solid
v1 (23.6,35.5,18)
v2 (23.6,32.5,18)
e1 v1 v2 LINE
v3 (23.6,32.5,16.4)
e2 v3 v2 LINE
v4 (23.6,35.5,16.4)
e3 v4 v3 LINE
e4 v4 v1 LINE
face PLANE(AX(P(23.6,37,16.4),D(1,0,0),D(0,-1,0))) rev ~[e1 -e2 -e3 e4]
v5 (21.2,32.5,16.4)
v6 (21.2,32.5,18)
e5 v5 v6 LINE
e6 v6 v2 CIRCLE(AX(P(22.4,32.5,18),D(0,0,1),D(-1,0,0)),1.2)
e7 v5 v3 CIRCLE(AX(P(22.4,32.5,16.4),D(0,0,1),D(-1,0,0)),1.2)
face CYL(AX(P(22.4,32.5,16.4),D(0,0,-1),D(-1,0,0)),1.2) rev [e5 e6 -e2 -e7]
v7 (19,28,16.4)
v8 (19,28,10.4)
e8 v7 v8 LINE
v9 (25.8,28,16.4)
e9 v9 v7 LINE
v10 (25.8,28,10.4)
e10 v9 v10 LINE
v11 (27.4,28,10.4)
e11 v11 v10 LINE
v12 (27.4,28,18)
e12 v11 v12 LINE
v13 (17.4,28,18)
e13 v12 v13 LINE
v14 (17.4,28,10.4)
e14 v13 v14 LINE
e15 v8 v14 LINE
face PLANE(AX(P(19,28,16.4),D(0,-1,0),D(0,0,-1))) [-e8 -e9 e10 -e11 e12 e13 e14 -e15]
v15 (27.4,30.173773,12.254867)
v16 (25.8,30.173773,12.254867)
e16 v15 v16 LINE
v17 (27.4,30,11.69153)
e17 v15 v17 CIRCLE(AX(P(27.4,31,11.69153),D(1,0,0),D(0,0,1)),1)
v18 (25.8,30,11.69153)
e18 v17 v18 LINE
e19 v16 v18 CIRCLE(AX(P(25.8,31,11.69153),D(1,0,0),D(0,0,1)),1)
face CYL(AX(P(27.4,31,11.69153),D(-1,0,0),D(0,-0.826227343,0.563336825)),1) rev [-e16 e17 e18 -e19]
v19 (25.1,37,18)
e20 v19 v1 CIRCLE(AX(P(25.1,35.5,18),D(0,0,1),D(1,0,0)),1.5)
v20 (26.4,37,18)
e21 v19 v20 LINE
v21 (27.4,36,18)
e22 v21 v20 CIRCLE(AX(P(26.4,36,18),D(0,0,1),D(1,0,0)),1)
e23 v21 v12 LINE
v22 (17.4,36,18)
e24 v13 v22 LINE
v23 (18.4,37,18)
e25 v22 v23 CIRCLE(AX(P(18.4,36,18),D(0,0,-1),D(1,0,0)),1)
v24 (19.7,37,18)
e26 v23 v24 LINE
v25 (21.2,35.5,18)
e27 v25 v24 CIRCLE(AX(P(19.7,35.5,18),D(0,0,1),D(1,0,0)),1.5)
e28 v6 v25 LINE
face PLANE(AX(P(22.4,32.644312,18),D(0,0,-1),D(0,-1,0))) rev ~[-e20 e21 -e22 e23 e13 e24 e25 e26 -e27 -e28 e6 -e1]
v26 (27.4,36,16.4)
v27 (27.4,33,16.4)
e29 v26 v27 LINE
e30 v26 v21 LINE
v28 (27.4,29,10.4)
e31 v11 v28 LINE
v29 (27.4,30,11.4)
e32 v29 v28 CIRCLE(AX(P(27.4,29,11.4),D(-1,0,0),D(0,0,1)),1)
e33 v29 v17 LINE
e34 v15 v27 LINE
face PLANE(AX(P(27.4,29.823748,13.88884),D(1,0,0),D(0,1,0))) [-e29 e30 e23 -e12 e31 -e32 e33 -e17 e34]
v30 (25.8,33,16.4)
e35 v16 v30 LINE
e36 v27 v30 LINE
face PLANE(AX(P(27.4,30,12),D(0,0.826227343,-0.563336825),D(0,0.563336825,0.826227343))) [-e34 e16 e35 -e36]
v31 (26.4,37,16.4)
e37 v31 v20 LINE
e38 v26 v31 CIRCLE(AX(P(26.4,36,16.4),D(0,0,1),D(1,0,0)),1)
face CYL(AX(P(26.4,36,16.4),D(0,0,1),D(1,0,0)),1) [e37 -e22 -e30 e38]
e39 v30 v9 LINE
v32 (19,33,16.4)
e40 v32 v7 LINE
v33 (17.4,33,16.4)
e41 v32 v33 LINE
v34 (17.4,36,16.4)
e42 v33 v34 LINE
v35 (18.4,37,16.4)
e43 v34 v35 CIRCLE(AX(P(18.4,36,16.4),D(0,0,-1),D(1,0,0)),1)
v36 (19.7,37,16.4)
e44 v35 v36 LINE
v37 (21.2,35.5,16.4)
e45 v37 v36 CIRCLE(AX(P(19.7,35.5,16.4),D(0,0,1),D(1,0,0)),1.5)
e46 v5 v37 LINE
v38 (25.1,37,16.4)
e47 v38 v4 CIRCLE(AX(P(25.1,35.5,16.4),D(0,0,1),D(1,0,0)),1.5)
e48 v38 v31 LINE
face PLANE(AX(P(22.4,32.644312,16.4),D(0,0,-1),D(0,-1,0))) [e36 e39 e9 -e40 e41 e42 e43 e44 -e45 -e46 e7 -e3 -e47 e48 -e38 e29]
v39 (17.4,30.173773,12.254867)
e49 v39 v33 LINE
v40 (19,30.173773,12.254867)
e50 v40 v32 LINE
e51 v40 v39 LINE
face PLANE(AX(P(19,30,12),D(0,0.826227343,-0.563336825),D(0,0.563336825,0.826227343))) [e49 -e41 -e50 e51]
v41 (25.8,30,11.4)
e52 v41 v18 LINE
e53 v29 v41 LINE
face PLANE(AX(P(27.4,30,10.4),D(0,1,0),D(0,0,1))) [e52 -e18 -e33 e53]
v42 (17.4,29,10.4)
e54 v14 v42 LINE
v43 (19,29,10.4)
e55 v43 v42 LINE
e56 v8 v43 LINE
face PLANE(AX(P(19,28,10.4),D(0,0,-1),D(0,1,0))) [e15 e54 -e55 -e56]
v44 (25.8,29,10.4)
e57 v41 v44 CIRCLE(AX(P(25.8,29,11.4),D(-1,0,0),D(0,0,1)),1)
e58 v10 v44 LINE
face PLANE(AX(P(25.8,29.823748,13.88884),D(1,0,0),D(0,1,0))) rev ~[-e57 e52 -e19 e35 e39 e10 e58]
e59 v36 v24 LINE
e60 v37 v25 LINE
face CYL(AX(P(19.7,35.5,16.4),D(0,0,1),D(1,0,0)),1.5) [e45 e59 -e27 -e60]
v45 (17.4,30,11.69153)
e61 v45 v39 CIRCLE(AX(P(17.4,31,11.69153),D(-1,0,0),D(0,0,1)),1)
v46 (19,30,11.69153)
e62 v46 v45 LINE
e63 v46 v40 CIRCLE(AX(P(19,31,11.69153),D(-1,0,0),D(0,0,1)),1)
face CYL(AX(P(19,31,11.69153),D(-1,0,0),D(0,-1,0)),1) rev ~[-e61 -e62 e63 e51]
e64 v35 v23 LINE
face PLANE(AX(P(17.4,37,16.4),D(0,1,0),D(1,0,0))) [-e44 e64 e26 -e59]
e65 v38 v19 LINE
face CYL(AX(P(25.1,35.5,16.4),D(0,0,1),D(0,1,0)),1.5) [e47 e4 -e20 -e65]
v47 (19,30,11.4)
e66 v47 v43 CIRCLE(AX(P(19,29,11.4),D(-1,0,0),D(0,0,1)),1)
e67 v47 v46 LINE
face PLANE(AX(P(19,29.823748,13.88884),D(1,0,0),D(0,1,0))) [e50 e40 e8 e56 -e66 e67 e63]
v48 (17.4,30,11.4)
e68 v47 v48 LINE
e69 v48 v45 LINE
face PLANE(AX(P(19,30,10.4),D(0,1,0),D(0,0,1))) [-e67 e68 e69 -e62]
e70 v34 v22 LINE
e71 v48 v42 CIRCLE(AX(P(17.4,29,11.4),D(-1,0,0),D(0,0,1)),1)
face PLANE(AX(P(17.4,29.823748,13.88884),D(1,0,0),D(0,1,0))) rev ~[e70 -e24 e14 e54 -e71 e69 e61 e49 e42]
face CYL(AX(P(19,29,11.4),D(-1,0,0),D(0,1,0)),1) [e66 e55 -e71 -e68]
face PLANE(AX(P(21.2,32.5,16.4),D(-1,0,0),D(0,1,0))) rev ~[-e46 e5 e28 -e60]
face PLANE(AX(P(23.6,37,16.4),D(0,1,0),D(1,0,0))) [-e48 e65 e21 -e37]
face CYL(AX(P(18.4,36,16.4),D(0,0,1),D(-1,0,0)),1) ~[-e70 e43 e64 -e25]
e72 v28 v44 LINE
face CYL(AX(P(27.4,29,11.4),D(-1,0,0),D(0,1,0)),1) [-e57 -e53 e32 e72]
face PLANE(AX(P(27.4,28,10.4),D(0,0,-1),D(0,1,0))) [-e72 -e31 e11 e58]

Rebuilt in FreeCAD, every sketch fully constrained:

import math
import FreeCAD as App
import Part
import Sketcher

V = App.Vector


def edges_at(feature, points):
    """Names of the edges that pass closest to the given points."""
    edges = feature.Shape.Edges
    near = lambda p: min(range(len(edges)), key=lambda i: edges[i].distToShape(Part.Vertex(*p))[0])
    return sorted({f"Edge{near(p) + 1}" for p in points})

doc = App.newDocument("Part")
body = doc.addObject("PartDesign::Body", "Body")

# Sketch on XY plane
sketch1 = body.newObject("Sketcher::SketchObject", "Sketch")
sketch1.AttachmentSupport = (doc.getObject("XY_Plane"), [""])
sketch1.MapMode = "FlatFace"
sketch1.addGeometry(Part.LineSegment(V(4.5, 5, 0), V(-4.5, 5, 0)), False)
sketch1.addGeometry(Part.LineSegment(V(-4.5, 5, 0), V(-4.5, -5, 0)), False)
sketch1.addGeometry(Part.LineSegment(V(-4.5, -5, 0), V(4.5, -5, 0)), False)
sketch1.addGeometry(Part.LineSegment(V(4.5, -5, 0), V(4.5, -1.2, 0)), False)
sketch1.addGeometry(Part.LineSegment(V(4.5, -1.2, 0), V(0, -1.2, 0)), False)
sketch1.addGeometry(Part.ArcOfCircle(Part.Circle(V(0, 0, 0), V(0, 0, 1), 1.2), math.radians(90), math.radians(270)), False)
sketch1.addGeometry(Part.LineSegment(V(0, 1.2, 0), V(4.5, 1.2, 0)), False)
sketch1.addGeometry(Part.LineSegment(V(4.5, 1.2, 0), V(4.5, 5, 0)), False)
sketch1.addConstraint(Sketcher.Constraint("Coincident", 0, 2, 1, 1))
sketch1.addConstraint(Sketcher.Constraint("Coincident", 1, 2, 2, 1))
sketch1.addConstraint(Sketcher.Constraint("Coincident", 2, 2, 3, 1))
sketch1.addConstraint(Sketcher.Constraint("Coincident", 3, 2, 4, 1))
sketch1.addConstraint(Sketcher.Constraint("Tangent", 4, 2, 5, 2))
sketch1.addConstraint(Sketcher.Constraint("Tangent", 5, 1, 6, 1))
sketch1.addConstraint(Sketcher.Constraint("Coincident", 6, 2, 7, 1))
sketch1.addConstraint(Sketcher.Constraint("Coincident", 7, 2, 0, 1))
sketch1.addConstraint(Sketcher.Constraint("Horizontal", 0))
sketch1.addConstraint(Sketcher.Constraint("Vertical", 1))
sketch1.addConstraint(Sketcher.Constraint("Horizontal", 2))
sketch1.addConstraint(Sketcher.Constraint("Vertical", 3))
sketch1.addConstraint(Sketcher.Constraint("Horizontal", 4))
sketch1.addConstraint(Sketcher.Constraint("Horizontal", 6))
sketch1.addConstraint(Sketcher.Constraint("Vertical", 7))
sketch1.addConstraint(Sketcher.Constraint("Coincident", 5, 3, -1, 1))
sketch1.addConstraint(Sketcher.Constraint("Symmetric", 0, 2, 2, 2, -1, 1))
sketch1.addConstraint(Sketcher.Constraint("Vertical", 3, 2, 6, 2))
sketch1.addConstraint(Sketcher.Constraint("Radius", 5, 1.2))
sketch1.addConstraint(Sketcher.Constraint("DistanceX", 0, 2, 0, 1, 9.0))
sketch1.addConstraint(Sketcher.Constraint("DistanceY", 1, 2, 1, 1, 10.0))
pad1 = body.newObject("PartDesign::Pad", "Pad")
pad1.Profile = sketch1
pad1.Length = 1.6

# Sketch on XZ plane
sketch2 = body.newObject("Sketcher::SketchObject", "Sketch001")
sketch2.AttachmentSupport = (doc.getObject("XZ_Plane"), [""])
sketch2.MapMode = "FlatFace"
sketch2.AttachmentOffset = App.Placement(V(0, 0, 5), App.Rotation())
sketch2.addGeometry(Part.LineSegment(V(-4.5, 0, 0), V(-4.5, -6, 0)), False)
sketch2.addGeometry(Part.LineSegment(V(-4.5, -6, 0), V(-2.5, -6, 0)), False)
sketch2.addGeometry(Part.LineSegment(V(-2.5, -6, 0), V(-2.5, -4.4, 0)), False)
sketch2.addGeometry(Part.LineSegment(V(-2.5, -4.4, 0), V(0.5, 0, 0)), False)
sketch2.addGeometry(Part.LineSegment(V(0.5, 0, 0), V(-4.5, 0, 0)), False)
sketch2.addConstraint(Sketcher.Constraint("Coincident", 0, 2, 1, 1))
sketch2.addConstraint(Sketcher.Constraint("Coincident", 1, 2, 2, 1))
sketch2.addConstraint(Sketcher.Constraint("Coincident", 2, 2, 3, 1))
sketch2.addConstraint(Sketcher.Constraint("Coincident", 3, 2, 4, 1))
sketch2.addConstraint(Sketcher.Constraint("Coincident", 4, 2, 0, 1))
sketch2.addConstraint(Sketcher.Constraint("Vertical", 0))
sketch2.addConstraint(Sketcher.Constraint("Horizontal", 1))
sketch2.addConstraint(Sketcher.Constraint("Vertical", 2))
sketch2.addConstraint(Sketcher.Constraint("Horizontal", 4))
sketch2.addConstraint(Sketcher.Constraint("PointOnObject", 3, 2, -1))
sketch2.addConstraint(Sketcher.Constraint("DistanceX", 1, 1, 1, 2, 2.0))
sketch2.addConstraint(Sketcher.Constraint("DistanceX", 4, 2, 4, 1, 5.0))
sketch2.addConstraint(Sketcher.Constraint("DistanceY", 0, 2, 0, 1, 6.0))
sketch2.addConstraint(Sketcher.Constraint("DistanceY", 2, 1, 2, 2, 1.6))
sketch2.addConstraint(Sketcher.Constraint("DistanceX", 0, 2, -1, 1, 4.5))
pad2 = body.newObject("PartDesign::Pad", "Pad001")
pad2.Profile = sketch2
pad2.Length = 1.6
pad2.Reversed = True
doc.recompute()

linearpattern = body.newObject("PartDesign::LinearPattern", "LinearPattern")
linearpattern.Originals = [pad2]
linearpattern.Direction = (doc.getObject("Y_Axis"), [""])
linearpattern.Mode = "offset"
linearpattern.Offset = 8.4
linearpattern.Occurrences = 2
body.Tip = linearpattern
doc.recompute()

fillet = body.newObject("PartDesign::Fillet", "Fillet")
fillet.Base = (linearpattern, edges_at(linearpattern, [(-2.5, -4.2, -6), (-2.5, 4.2, -6)]))
fillet.Radius = 1
doc.recompute()

fillet2 = body.newObject("PartDesign::Fillet", "Fillet001")
fillet2.Base = (fillet, edges_at(fillet, [(-2.5, -4.2, -4.4), (-2.5, 4.2, -4.4)]))
fillet2.Radius = 1
doc.recompute()

fillet3 = body.newObject("PartDesign::Fillet", "Fillet002")
fillet3.Base = (fillet2, edges_at(fillet2, [(4.5, -5, 0.8), (4.5, 5, 0.8)]))
fillet3.Radius = 1
doc.recompute()

fillet4 = body.newObject("PartDesign::Fillet", "Fillet003")
fillet4.Base = (fillet3, edges_at(fillet3, [(4.5, -1.2, 0.8), (4.5, 1.2, 0.8)]))
fillet4.Radius = 1.5
body2 = doc.addObject("PartDesign::Body", "Body001")
doc.recompute()

body.Placement = App.Placement(V(22.4, 32.5, 16.4), App.Rotation(V(0, 0, 1), 90))
boolean = body2.newObject("PartDesign::Boolean", "Boolean")
boolean.Type = "Fuse"
boolean.addObjects([body])

doc.recompute()
